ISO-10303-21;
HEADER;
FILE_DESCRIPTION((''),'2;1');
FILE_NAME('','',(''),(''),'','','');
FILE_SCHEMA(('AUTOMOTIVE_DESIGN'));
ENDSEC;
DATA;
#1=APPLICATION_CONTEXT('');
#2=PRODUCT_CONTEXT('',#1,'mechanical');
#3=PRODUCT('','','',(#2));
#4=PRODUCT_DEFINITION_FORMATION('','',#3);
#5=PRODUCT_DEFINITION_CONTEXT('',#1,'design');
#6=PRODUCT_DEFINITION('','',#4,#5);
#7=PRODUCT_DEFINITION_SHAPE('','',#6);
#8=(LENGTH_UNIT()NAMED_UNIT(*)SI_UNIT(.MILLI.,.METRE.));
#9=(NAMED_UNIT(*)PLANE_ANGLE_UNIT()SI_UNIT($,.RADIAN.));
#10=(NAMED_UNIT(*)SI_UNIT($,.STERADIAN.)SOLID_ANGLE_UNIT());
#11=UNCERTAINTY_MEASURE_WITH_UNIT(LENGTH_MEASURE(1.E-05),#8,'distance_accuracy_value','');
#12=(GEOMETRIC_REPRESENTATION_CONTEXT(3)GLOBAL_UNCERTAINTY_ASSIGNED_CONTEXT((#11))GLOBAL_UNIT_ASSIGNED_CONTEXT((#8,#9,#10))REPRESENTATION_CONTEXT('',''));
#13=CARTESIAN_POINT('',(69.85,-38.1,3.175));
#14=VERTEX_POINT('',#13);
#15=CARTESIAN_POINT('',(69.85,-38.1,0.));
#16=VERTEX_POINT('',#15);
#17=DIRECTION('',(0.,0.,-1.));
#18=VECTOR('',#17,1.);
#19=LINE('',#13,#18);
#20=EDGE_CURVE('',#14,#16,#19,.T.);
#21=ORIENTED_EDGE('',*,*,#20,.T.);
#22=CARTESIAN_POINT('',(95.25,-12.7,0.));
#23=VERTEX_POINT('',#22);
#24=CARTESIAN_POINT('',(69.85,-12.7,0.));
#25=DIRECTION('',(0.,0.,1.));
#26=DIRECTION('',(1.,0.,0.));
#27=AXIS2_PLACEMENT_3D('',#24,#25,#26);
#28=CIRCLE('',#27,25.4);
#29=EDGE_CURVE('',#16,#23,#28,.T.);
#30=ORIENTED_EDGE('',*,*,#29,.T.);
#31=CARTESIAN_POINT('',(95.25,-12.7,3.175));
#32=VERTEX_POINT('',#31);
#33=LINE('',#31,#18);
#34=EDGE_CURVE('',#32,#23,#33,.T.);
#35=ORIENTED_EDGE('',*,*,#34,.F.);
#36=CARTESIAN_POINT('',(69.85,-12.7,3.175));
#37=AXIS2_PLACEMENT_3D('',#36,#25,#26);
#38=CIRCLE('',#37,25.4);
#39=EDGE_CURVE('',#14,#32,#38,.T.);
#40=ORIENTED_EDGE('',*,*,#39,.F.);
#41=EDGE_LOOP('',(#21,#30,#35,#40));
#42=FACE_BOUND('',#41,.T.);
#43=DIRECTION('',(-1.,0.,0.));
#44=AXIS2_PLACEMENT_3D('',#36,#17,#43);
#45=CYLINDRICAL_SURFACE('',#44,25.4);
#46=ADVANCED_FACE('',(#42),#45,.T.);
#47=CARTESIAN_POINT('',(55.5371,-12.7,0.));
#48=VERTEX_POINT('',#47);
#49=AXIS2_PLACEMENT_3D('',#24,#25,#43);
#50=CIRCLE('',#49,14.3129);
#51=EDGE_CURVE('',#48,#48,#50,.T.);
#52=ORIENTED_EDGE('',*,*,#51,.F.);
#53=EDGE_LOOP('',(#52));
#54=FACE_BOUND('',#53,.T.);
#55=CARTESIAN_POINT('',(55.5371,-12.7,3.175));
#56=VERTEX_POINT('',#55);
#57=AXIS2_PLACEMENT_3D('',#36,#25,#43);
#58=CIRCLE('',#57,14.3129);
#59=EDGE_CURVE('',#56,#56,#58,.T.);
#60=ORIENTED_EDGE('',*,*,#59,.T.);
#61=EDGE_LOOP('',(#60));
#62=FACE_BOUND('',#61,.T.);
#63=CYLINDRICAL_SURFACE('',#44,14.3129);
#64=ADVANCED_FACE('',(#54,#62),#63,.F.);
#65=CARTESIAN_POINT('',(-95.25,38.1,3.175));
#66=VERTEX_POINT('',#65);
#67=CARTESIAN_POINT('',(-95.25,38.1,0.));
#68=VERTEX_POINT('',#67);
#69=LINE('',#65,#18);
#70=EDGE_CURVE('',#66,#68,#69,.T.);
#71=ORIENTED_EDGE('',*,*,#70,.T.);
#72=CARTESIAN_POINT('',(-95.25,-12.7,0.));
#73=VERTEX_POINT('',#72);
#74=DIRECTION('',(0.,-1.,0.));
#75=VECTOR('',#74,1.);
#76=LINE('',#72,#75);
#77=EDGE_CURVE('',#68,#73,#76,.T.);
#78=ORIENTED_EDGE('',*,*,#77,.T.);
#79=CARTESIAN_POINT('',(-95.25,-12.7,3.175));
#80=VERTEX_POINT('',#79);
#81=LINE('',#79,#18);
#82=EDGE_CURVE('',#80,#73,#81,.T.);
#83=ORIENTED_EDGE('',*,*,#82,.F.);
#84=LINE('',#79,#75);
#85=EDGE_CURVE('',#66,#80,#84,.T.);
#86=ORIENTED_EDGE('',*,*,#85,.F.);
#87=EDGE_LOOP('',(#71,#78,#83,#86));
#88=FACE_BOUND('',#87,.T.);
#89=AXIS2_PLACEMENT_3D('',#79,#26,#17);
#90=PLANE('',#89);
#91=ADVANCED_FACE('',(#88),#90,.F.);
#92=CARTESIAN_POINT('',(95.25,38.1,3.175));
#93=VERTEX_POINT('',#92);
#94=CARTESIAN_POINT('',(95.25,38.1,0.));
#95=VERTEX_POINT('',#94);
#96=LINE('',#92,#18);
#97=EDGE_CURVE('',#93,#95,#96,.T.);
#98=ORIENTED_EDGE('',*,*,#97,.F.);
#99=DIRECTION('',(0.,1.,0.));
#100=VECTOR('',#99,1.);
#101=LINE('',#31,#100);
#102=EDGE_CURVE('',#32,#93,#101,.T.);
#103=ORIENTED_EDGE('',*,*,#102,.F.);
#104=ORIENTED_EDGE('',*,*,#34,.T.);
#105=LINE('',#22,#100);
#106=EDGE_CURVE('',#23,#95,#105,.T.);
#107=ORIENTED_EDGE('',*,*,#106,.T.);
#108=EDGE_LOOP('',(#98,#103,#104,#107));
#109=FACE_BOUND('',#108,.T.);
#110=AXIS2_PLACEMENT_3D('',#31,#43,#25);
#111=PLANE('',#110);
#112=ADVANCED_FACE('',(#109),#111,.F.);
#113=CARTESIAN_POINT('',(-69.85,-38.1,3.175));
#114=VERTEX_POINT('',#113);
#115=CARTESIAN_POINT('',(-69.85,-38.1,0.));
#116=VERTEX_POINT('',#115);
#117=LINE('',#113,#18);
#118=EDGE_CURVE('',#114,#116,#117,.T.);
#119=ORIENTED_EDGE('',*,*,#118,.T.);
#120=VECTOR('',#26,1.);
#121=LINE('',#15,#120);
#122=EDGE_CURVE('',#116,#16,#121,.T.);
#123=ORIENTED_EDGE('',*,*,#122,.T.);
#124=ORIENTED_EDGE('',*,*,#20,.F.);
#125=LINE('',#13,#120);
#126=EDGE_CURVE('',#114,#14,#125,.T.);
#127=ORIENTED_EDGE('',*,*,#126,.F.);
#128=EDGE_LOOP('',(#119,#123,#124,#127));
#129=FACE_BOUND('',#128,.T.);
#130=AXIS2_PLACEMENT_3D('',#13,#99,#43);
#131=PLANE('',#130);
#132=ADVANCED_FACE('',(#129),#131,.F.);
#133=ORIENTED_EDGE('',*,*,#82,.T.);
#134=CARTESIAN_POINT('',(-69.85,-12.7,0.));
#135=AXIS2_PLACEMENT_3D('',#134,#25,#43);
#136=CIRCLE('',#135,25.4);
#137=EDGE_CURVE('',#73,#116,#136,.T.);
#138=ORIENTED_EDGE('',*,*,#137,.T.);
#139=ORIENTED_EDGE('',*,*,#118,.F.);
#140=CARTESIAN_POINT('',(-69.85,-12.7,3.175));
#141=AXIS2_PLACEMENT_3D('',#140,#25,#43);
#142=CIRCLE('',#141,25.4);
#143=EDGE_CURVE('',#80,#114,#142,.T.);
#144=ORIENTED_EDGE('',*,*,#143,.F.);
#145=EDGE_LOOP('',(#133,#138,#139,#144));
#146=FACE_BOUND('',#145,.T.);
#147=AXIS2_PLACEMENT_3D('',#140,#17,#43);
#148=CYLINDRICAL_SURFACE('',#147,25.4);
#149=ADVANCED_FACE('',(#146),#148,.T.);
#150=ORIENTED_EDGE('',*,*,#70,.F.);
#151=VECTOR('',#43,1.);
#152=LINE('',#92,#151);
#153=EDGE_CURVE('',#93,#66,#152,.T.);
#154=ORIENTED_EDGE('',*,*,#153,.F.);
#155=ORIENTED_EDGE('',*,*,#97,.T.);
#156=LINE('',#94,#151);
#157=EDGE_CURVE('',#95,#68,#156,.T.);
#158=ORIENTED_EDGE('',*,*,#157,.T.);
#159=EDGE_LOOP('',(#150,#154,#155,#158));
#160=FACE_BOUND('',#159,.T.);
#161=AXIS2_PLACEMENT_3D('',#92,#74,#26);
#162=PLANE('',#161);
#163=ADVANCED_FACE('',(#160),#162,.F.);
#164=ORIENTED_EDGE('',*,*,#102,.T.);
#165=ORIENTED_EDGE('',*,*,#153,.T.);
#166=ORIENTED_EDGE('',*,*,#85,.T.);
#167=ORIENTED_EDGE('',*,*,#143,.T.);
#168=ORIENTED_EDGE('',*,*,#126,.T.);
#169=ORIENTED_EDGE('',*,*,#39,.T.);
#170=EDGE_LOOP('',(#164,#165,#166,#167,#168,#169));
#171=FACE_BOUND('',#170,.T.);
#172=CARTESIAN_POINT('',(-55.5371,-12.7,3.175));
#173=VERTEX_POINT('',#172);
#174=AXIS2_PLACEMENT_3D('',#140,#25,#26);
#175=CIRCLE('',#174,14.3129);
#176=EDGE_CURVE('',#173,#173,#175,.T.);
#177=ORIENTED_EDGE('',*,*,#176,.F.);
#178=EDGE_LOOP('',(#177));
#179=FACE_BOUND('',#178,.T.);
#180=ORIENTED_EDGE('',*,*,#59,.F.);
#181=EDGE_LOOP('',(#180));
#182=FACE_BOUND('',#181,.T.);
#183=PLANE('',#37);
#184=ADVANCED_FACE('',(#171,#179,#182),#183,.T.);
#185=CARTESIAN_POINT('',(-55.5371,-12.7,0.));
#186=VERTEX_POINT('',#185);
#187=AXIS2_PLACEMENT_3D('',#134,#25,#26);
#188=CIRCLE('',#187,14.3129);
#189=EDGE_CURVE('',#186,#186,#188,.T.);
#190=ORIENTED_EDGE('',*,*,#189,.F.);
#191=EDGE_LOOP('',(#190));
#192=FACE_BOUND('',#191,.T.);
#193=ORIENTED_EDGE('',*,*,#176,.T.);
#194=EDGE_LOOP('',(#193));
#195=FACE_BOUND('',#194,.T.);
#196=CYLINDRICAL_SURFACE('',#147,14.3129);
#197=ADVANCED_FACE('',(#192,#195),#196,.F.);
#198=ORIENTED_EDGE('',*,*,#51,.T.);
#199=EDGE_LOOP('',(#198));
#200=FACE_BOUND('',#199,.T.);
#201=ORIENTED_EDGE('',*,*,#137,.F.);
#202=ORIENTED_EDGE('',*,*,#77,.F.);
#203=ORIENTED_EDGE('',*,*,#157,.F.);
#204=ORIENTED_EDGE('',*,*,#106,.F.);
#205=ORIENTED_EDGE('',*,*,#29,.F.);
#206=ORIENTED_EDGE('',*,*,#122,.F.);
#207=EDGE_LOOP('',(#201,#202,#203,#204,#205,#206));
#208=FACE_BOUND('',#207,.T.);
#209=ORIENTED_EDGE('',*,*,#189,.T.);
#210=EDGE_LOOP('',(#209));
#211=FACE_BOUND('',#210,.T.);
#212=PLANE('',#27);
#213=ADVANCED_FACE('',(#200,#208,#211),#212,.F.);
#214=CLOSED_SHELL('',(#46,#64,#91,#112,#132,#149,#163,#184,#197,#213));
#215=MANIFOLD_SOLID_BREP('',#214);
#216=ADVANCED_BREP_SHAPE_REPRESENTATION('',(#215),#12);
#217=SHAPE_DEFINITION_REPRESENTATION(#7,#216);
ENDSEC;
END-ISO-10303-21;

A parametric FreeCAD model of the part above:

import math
import FreeCAD as App
import Part
import Sketcher

V = App.Vector
Q = App.Units.Quantity

doc = App.newDocument("Part")
body = doc.addObject("PartDesign::Body", "Body")

# Sketch on XY plane
sketch1 = body.newObject("Sketcher::SketchObject", "Sketch")
sketch1.AttachmentSupport = (doc.getObject("XY_Plane"), [""])
sketch1.MapMode = "FlatFace"
sketch1.addGeometry([
    Part.LineSegment(V(-69.85, -38.1, 0), V(69.85, -38.1, 0)),  # 0
    Part.ArcOfCircle(Part.Circle(V(69.85, -12.7, 0), V(0, 0, 1), 25.4), math.radians(-90), math.radians(0)),  # 1
    Part.LineSegment(V(95.25, -12.7, 0), V(95.25, 38.1, 0)),  # 2
    Part.LineSegment(V(95.25, 38.1, 0), V(-95.25, 38.1, 0)),  # 3
    Part.LineSegment(V(-95.25, 38.1, 0), V(-95.25, -12.7, 0)),  # 4
    Part.ArcOfCircle(Part.Circle(V(-69.85, -12.7, 0), V(0, 0, 1), 25.4), math.radians(180), math.radians(270)),  # 5
    Part.Circle(V(69.85, -12.7, 0), V(0, 0, 1), 14.3129),  # 6
    Part.Circle(V(-69.85, -12.7, 0), V(0, 0, 1), 14.3129),  # 7
], False)
sketch1.addConstraint([
    Sketcher.Constraint("Tangent", 0, 2, 1, 1),
    Sketcher.Constraint("Tangent", 1, 2, 2, 1),
    Sketcher.Constraint("Coincident", 2, 2, 3, 1),
    Sketcher.Constraint("Coincident", 3, 2, 4, 1),
    Sketcher.Constraint("Tangent", 4, 2, 5, 1),
    Sketcher.Constraint("Tangent", 5, 2, 0, 1),
    Sketcher.Constraint("Horizontal", 0),
    Sketcher.Constraint("Vertical", 2),
    Sketcher.Constraint("Horizontal", 3),
    Sketcher.Constraint("Vertical", 4),
    Sketcher.Constraint("Coincident", 6, 3, 1, 3),
    Sketcher.Constraint("Coincident", 7, 3, 5, 3),
    Sketcher.Constraint("Equal", 1, 5),
    Sketcher.Constraint("Equal", 6, 7),
    Sketcher.Constraint("Radius", 1, Q("1 in")),
    Sketcher.Constraint("DistanceY", 2, 1, 2, 2, Q("2 in")),
    Sketcher.Constraint("Diameter", 6, Q("1.127 in")),
    Sketcher.Constraint("DistanceX", 0, 1, 0, 2, Q("5.5 in")),
    Sketcher.Constraint("DistanceY", 1, 3, -1, 1, Q("0.5 in")),
    Sketcher.Constraint("DistanceX", -1, 1, 1, 3, Q("2.75 in")),
])
pad1 = body.newObject("PartDesign::Pad", "Pad")
pad1.Profile = sketch1
pad1.Length = Q("0.125 in")

doc.recompute()
